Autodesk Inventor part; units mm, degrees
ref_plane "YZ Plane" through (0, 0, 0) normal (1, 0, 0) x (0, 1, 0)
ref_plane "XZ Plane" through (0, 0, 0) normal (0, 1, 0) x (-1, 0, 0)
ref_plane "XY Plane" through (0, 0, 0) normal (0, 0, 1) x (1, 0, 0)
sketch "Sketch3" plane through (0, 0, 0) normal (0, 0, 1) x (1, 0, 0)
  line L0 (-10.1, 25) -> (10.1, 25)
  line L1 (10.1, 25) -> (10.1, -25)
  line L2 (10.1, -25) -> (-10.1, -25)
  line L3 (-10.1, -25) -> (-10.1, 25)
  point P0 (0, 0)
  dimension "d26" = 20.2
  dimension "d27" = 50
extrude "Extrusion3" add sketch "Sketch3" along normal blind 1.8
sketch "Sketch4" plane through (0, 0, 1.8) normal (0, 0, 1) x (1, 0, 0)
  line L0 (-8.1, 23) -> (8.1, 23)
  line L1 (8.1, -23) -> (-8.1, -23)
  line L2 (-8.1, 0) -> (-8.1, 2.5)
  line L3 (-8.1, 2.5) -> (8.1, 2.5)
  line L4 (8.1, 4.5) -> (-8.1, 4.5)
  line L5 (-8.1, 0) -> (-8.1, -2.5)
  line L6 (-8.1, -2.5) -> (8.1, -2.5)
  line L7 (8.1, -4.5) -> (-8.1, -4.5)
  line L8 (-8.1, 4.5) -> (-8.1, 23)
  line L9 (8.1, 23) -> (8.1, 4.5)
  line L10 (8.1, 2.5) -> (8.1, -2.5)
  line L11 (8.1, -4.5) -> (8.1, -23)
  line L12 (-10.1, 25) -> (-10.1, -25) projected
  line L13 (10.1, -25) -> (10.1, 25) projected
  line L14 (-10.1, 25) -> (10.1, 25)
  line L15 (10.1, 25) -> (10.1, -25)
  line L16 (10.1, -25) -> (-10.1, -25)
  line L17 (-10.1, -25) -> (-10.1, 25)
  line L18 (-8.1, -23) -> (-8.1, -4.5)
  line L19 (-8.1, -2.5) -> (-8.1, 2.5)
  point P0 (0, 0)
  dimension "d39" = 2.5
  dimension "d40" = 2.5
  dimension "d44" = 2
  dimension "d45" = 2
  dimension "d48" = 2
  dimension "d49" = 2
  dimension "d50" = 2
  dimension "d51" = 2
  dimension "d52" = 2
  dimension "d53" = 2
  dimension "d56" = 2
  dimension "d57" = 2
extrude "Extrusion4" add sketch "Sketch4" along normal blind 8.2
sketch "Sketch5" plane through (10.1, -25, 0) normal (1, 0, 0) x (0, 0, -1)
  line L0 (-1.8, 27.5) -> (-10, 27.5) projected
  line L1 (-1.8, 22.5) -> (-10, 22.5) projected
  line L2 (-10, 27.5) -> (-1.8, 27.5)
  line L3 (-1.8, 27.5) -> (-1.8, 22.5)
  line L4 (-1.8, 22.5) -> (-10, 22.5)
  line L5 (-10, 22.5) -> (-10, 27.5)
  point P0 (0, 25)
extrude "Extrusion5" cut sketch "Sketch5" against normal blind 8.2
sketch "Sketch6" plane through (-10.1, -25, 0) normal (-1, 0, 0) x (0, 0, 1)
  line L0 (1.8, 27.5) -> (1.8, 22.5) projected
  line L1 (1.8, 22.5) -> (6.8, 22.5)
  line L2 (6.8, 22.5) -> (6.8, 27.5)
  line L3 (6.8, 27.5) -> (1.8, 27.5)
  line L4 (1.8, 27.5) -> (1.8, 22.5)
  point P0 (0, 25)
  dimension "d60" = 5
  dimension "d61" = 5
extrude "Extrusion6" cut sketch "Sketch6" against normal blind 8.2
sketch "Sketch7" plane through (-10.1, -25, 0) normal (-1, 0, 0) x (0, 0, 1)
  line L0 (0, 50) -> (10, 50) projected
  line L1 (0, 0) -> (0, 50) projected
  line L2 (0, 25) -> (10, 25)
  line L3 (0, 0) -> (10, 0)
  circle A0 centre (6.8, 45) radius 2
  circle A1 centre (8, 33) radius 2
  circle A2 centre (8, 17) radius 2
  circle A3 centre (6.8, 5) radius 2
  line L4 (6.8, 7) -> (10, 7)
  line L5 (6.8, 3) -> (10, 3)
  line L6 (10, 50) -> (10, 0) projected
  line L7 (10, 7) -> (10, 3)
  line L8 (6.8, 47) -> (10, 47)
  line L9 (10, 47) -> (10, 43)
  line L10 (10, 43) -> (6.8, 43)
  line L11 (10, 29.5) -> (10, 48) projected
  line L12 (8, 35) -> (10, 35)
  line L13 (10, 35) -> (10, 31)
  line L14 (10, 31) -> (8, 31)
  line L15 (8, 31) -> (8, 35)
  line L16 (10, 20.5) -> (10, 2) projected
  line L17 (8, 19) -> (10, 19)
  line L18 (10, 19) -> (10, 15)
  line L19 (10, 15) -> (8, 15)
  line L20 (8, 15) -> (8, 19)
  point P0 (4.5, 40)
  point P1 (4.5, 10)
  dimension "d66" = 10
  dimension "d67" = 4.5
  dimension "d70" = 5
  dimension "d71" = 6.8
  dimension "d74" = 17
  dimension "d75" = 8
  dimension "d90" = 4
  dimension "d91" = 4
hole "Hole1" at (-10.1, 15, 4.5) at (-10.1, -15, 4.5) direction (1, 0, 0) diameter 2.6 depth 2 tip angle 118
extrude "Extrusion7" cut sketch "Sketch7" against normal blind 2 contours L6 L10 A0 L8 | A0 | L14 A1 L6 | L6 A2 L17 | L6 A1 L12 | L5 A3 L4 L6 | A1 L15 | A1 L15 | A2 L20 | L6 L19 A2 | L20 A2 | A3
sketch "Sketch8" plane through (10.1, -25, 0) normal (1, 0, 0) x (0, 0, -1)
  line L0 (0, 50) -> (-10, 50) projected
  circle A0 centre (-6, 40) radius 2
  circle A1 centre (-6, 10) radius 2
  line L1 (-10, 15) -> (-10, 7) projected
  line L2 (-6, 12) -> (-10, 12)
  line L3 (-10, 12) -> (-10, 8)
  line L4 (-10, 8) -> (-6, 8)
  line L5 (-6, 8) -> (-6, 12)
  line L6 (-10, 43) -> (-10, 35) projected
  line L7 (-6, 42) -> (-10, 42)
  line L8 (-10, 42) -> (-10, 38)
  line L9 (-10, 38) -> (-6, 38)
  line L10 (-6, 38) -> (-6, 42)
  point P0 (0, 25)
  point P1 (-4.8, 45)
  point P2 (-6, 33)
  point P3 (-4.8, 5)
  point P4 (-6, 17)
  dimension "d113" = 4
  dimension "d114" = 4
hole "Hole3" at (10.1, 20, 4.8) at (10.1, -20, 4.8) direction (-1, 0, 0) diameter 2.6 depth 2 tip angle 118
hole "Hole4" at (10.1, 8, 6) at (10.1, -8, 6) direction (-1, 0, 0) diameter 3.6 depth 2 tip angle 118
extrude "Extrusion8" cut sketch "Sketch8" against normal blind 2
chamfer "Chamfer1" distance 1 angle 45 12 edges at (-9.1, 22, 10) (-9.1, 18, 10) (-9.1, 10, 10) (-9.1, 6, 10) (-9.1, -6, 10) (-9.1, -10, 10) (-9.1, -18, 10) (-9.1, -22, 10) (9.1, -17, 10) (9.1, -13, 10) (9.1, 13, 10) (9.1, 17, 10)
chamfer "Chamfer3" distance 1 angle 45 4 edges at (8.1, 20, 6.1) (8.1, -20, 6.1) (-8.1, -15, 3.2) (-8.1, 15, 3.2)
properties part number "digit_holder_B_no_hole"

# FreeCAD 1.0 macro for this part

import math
import FreeCAD as App
import Part
import Sketcher

V = App.Vector


def edges_at(feature, points):
    """Names of the edges that pass closest to the given points."""
    edges = feature.Shape.Edges
    near = lambda p: min(range(len(edges)), key=lambda i: edges[i].distToShape(Part.Vertex(*p))[0])
    return sorted({f"Edge{near(p) + 1}" for p in points})

doc = App.newDocument("Part")
body = doc.addObject("PartDesign::Body", "Body")

sketch1 = body.newObject("Sketcher::SketchObject", "Sketch")
sketch1.AttachmentSupport = (doc.getObject("XY_Plane"), [""])
sketch1.MapMode = "FlatFace"
sketch1.addGeometry(Part.LineSegment(V(10, 25, 0), V(-10, 25, 0)), False)
sketch1.addGeometry(Part.LineSegment(V(-10, 25, 0), V(-10, -25, 0)), False)
sketch1.addGeometry(Part.LineSegment(V(-10, -25, 0), V(10, -25, 0)), False)
sketch1.addGeometry(Part.LineSegment(V(10, -25, 0), V(10, 25, 0)), False)
sketch1.addConstraint(Sketcher.Constraint("Coincident", 0, 2, 1, 1))
sketch1.addConstraint(Sketcher.Constraint("Coincident", 1, 2, 2, 1))
sketch1.addConstraint(Sketcher.Constraint("Coincident", 2, 2, 3, 1))
sketch1.addConstraint(Sketcher.Constraint("Coincident", 3, 2, 0, 1))
sketch1.addConstraint(Sketcher.Constraint("Horizontal", 0))
sketch1.addConstraint(Sketcher.Constraint("Vertical", 1))
sketch1.addConstraint(Sketcher.Constraint("Horizontal", 2))
sketch1.addConstraint(Sketcher.Constraint("Vertical", 3))
sketch1.addConstraint(Sketcher.Constraint("Symmetric", 0, 2, 2, 2, -1, 1))
sketch1.addConstraint(Sketcher.Constraint("DistanceY", 1, 2, 1, 1, 50.0))
sketch1.addConstraint(Sketcher.Constraint("DistanceX", 0, 2, 0, 1, 20.2))
pad1 = body.newObject("PartDesign::Pad", "Pad")
pad1.Profile = sketch1
pad1.Length = 1.8

sketch2 = body.newObject("Sketcher::SketchObject", "Sketch001")
sketch2.AttachmentSupport = (doc.getObject("XY_Plane"), [""])
sketch2.MapMode = "FlatFace"
sketch2.AttachmentOffset = App.Placement(V(0, 0, 1.8), App.Rotation())
sketch2.addGeometry(Part.LineSegment(V(10, 25, 0), V(-10, 25, 0)), False)
sketch2.addGeometry(Part.LineSegment(V(-10, 25, 0), V(-10, -25, 0)), False)
sketch2.addGeometry(Part.LineSegment(V(-10, -25, 0), V(10, -25, 0)), False)
sketch2.addGeometry(Part.LineSegment(V(10, -25, 0), V(10, 25, 0)), False)
sketch2.addGeometry(Part.LineSegment(V(8, -4, 0), V(8, -23, 0)), False)
sketch2.addGeometry(Part.LineSegment(V(8, -23, 0), V(-8, -23, 0)), False)
sketch2.addGeometry(Part.LineSegment(V(-8, -23, 0), V(-8, -4, 0)), False)
sketch2.addGeometry(Part.LineSegment(V(-8, -4, 0), V(8, -4, 0)), False)
sketch2.addGeometry(Part.LineSegment(V(-8, -2, 0), V(-8, 2, 0)), False)
sketch2.addGeometry(Part.LineSegment(V(-8, 2, 0), V(8, 2, 0)), False)
sketch2.addGeometry(Part.LineSegment(V(8, 2, 0), V(8, -2, 0)), False)
sketch2.addGeometry(Part.LineSegment(V(8, -2, 0), V(-8, -2, 0)), False)
sketch2.addGeometry(Part.LineSegment(V(-8, 4, 0), V(-8, 23, 0)), False)
sketch2.addGeometry(Part.LineSegment(V(-8, 23, 0), V(8, 23, 0)), False)
sketch2.addGeometry(Part.LineSegment(V(8, 23, 0), V(8, 4, 0)), False)
sketch2.addGeometry(Part.LineSegment(V(8, 4, 0), V(-8, 4, 0)), False)
sketch2.addConstraint(Sketcher.Constraint("Coincident", 0, 2, 1, 1))
sketch2.addConstraint(Sketcher.Constraint("Coincident", 1, 2, 2, 1))
sketch2.addConstraint(Sketcher.Constraint("Coincident", 2, 2, 3, 1))
sketch2.addConstraint(Sketcher.Constraint("Coincident", 3, 2, 0, 1))
sketch2.addConstraint(Sketcher.Constraint("Coincident", 4, 2, 5, 1))
sketch2.addConstraint(Sketcher.Constraint("Coincident", 5, 2, 6, 1))
sketch2.addConstraint(Sketcher.Constraint("Coincident", 6, 2, 7, 1))
sketch2.addConstraint(Sketcher.Constraint("Coincident", 7, 2, 4, 1))
sketch2.addConstraint(Sketcher.Constraint("Coincident", 8, 2, 9, 1))
sketch2.addConstraint(Sketcher.Constraint("Coincident", 9, 2, 10, 1))
sketch2.addConstraint(Sketcher.Constraint("Coincident", 10, 2, 11, 1))
sketch2.addConstraint(Sketcher.Constraint("Coincident", 11, 2, 8, 1))
sketch2.addConstraint(Sketcher.Constraint("Coincident", 12, 2, 13, 1))
sketch2.addConstraint(Sketcher.Constraint("Coincident", 13, 2, 14, 1))
sketch2.addConstraint(Sketcher.Constraint("Coincident", 14, 2, 15, 1))
sketch2.addConstraint(Sketcher.Constraint("Coincident", 15, 2, 12, 1))
sketch2.addConstraint(Sketcher.Constraint("Horizontal", 0))
sketch2.addConstraint(Sketcher.Constraint("Vertical", 1))
sketch2.addConstraint(Sketcher.Constraint("Horizontal", 2))
sketch2.addConstraint(Sketcher.Constraint("Vertical", 3))
sketch2.addConstraint(Sketcher.Constraint("Vertical", 4))
sketch2.addConstraint(Sketcher.Constraint("Horizontal", 5))
sketch2.addConstraint(Sketcher.Constraint("Vertical", 6))
sketch2.addConstraint(Sketcher.Constraint("Horizontal", 7))
sketch2.addConstraint(Sketcher.Constraint("Vertical", 8))
sketch2.addConstraint(Sketcher.Constraint("Horizontal", 9))
sketch2.addConstraint(Sketcher.Constraint("Vertical", 10))
sketch2.addConstraint(Sketcher.Constraint("Horizontal", 11))
sketch2.addConstraint(Sketcher.Constraint("Vertical", 12))
sketch2.addConstraint(Sketcher.Constraint("Horizontal", 13))
sketch2.addConstraint(Sketcher.Constraint("Vertical", 14))
sketch2.addConstraint(Sketcher.Constraint("Horizontal", 15))
sketch2.addConstraint(Sketcher.Constraint("Symmetric", 0, 2, 2, 2, -1, 1))
sketch2.addConstraint(Sketcher.Constraint("Symmetric", 8, 2, 10, 2, -1, 1))
sketch2.addConstraint(Sketcher.Constraint("Symmetric", 4, 2, 12, 2, -1, 1))
sketch2.addConstraint(Sketcher.Constraint("Symmetric", 6, 2, 14, 2, -1, 1))
sketch2.addConstraint(Sketcher.Constraint("Vertical", 6, 2, 8, 2))
sketch2.addConstraint(Sketcher.Constraint("Vertical", 7, 2, 9, 2))
sketch2.addConstraint(Sketcher.Constraint("DistanceX", 4, 2, 2, 2, 2.0))
sketch2.addConstraint(Sketcher.Constraint("DistanceY", 2, 2, 4, 2, 2.0))
sketch2.addConstraint(Sketcher.Constraint("DistanceY", 7, 2, 10, 2, 2.0))
sketch2.addConstraint(Sketcher.Constraint("DistanceY", -1, 1, 8, 2, 2.5))
sketch2.addConstraint(Sketcher.Constraint("DistanceY", 1, 2, 1, 1, 50.0))
sketch2.addConstraint(Sketcher.Constraint("DistanceX", 0, 2, 0, 1, 20.2))
pad2 = body.newObject("PartDesign::Pad", "Pad001")
pad2.Profile = sketch2
pad2.Length = 8.2

sketch3 = body.newObject("Sketcher::SketchObject", "Sketch002")
sketch3.AttachmentSupport = (doc.getObject("YZ_Plane"), [""])
sketch3.MapMode = "FlatFace"
sketch3.AttachmentOffset = App.Placement(V(0, 0, 10.1), App.Rotation())
sketch3.addGeometry(Part.LineSegment(V(-2, 2, 0), V(2, 2, 0)), False)
sketch3.addGeometry(Part.LineSegment(V(2, 2, 0), V(2, 10, 0)), False)
sketch3.addGeometry(Part.LineSegment(V(2, 10, 0), V(-2, 10, 0)), False)
sketch3.addGeometry(Part.LineSegment(V(-2, 10, 0), V(-2, 2, 0)), False)
sketch3.addConstraint(Sketcher.Constraint("Coincident", 0, 2, 1, 1))
sketch3.addConstraint(Sketcher.Constraint("Coincident", 1, 2, 2, 1))
sketch3.addConstraint(Sketcher.Constraint("Coincident", 2, 2, 3, 1))
sketch3.addConstraint(Sketcher.Constraint("Coincident", 3, 2, 0, 1))
sketch3.addConstraint(Sketcher.Constraint("Horizontal", 0))
sketch3.addConstraint(Sketcher.Constraint("Vertical", 1))
sketch3.addConstraint(Sketcher.Constraint("Horizontal", 2))
sketch3.addConstraint(Sketcher.Constraint("Vertical", 3))
sketch3.addConstraint(Sketcher.Constraint("DistanceX", 0, 1, 0, 2, 5.0))
sketch3.addConstraint(Sketcher.Constraint("DistanceY", 1, 1, 1, 2, 8.2))
sketch3.addConstraint(Sketcher.Constraint("DistanceY", -1, 1, 1, 2, 10.0))
sketch3.addConstraint(Sketcher.Constraint("DistanceX", -1, 1, 0, 2, 2.5))
pocket1 = body.newObject("PartDesign::Pocket", "Pocket")
pocket1.Profile = sketch3
pocket1.Length = 8.2

sketch4 = body.newObject("Sketcher::SketchObject", "Sketch003")
sketch4.AttachmentSupport = (doc.getObject("YZ_Plane"), [""])
sketch4.MapMode = "FlatFace"
sketch4.AttachmentOffset = App.Placement(V(0, 0, -10.1), App.Rotation())
sketch4.addGeometry(Part.LineSegment(V(2, 7, 0), V(2, 2, 0)), False)
sketch4.addGeometry(Part.LineSegment(V(2, 2, 0), V(-2, 2, 0)), False)
sketch4.addGeometry(Part.LineSegment(V(-2, 2, 0), V(-2, 7, 0)), False)
sketch4.addGeometry(Part.LineSegment(V(-2, 7, 0), V(2, 7, 0)), False)
sketch4.addConstraint(Sketcher.Constraint("Coincident", 0, 2, 1, 1))
sketch4.addConstraint(Sketcher.Constraint("Coincident", 1, 2, 2, 1))
sketch4.addConstraint(Sketcher.Constraint("Coincident", 2, 2, 3, 1))
sketch4.addConstraint(Sketcher.Constraint("Coincident", 3, 2, 0, 1))
sketch4.addConstraint(Sketcher.Constraint("Vertical", 0))
sketch4.addConstraint(Sketcher.Constraint("Horizontal", 1))
sketch4.addConstraint(Sketcher.Constraint("Vertical", 2))
sketch4.addConstraint(Sketcher.Constraint("Horizontal", 3))
sketch4.addConstraint(Sketcher.Constraint("Equal", 3, 0))
sketch4.addConstraint(Sketcher.Constraint("DistanceX", 1, 2, 1, 1, 5.0))
sketch4.addConstraint(Sketcher.Constraint("DistanceX", -1, 1, 0, 2, 2.5))
sketch4.addConstraint(Sketcher.Constraint("DistanceY", -1, 1, 0, 2, 1.8))
pocket2 = body.newObject("PartDesign::Pocket", "Pocket001")
pocket2.Profile = sketch4
pocket2.Length = 8.2
pocket2.Reversed = True

sketch5 = body.newObject("Sketcher::SketchObject", "Sketch004")
sketch5.AttachmentSupport = (doc.getObject("YZ_Plane"), [""])
sketch5.MapMode = "FlatFace"
sketch5.AttachmentOffset = App.Placement(V(0, 0, -10.1), App.Rotation())
sketch5.addGeometry(Part.Circle(V(15, 4.5, 0), V(0, 0, 1), 1.3), False)
sketch5.addGeometry(Part.Circle(V(-15, 4.5, 0), V(0, 0, 1), 1.3), False)
sketch5.addConstraint(Sketcher.Constraint("Equal", 0, 1))
sketch5.addConstraint(Sketcher.Constraint("Symmetric", 0, 3, 1, 3, -2))
sketch5.addConstraint(Sketcher.Constraint("Diameter", 0, 2.6))
sketch5.addConstraint(Sketcher.Constraint("DistanceX", -1, 1, 0, 3, 15.0))
sketch5.addConstraint(Sketcher.Constraint("DistanceY", -1, 1, 0, 3, 4.5))
doc.recompute()
hole = body.newObject("PartDesign::Hole", "Hole")
hole.Profile = sketch5
hole.ThreadType = "None"
hole.Diameter = 2.6
hole.DepthType = "Dimension"
hole.Depth = 2
hole.DrillPoint = "Angled"
hole.DrillPointAngle = 118
hole.Reversed = True

sketch6 = body.newObject("Sketcher::SketchObject", "Sketch005")
sketch6.AttachmentSupport = (doc.getObject("YZ_Plane"), [""])
sketch6.MapMode = "FlatFace"
sketch6.AttachmentOffset = App.Placement(V(0, 0, -10.1), App.Rotation())
sketch6.addGeometry(Part.LineSegment(V(18, 10, 0), V(22, 10, 0)), False)
sketch6.addGeometry(Part.LineSegment(V(22, 10, 0), V(22, 6.8, 0)), False)
sketch6.addGeometry(Part.ArcOfCircle(Part.Circle(V(20, 6.8, 0), V(0, 0, 1), 2), math.radians(180), math.radians(360)), False)
sketch6.addGeometry(Part.LineSegment(V(18, 6.8, 0), V(18, 10, 0)), False)
sketch6.addGeometry(Part.LineSegment(V(6, 8, 0), V(6, 10, 0)), False)
sketch6.addGeometry(Part.LineSegment(V(6, 10, 0), V(10, 10, 0)), False)
sketch6.addGeometry(Part.LineSegment(V(10, 10, 0), V(10, 8, 0)), False)
sketch6.addGeometry(Part.ArcOfCircle(Part.Circle(V(8, 8, 0), V(0, 0, 1), 2), math.radians(180), math.radians(360)), False)
sketch6.addGeometry(Part.LineSegment(V(-6, 10, 0), V(-6, 8, 0)), False)
sketch6.addGeometry(Part.ArcOfCircle(Part.Circle(V(-8, 8, 0), V(0, 0, 1), 2), math.radians(180), math.radians(360)), False)
sketch6.addGeometry(Part.LineSegment(V(-10, 8, 0), V(-10, 10, 0)), False)
sketch6.addGeometry(Part.LineSegment(V(-10, 10, 0), V(-6, 10, 0)), False)
sketch6.addGeometry(Part.LineSegment(V(-22, 6.8, 0), V(-22, 10, 0)), False)
sketch6.addGeometry(Part.LineSegment(V(-22, 10, 0), V(-18, 10, 0)), False)
sketch6.addGeometry(Part.LineSegment(V(-18, 10, 0), V(-18, 6.8, 0)), False)
sketch6.addGeometry(Part.ArcOfCircle(Part.Circle(V(-20, 6.8, 0), V(0, 0, 1), 2), math.radians(180), math.radians(360)), False)
sketch6.addConstraint(Sketcher.Constraint("Coincident", 0, 2, 1, 1))
sketch6.addConstraint(Sketcher.Constraint("Tangent", 1, 2, 2, 2))
sketch6.addConstraint(Sketcher.Constraint("Tangent", 2, 1, 3, 1))
sketch6.addConstraint(Sketcher.Constraint("Coincident", 3, 2, 0, 1))
sketch6.addConstraint(Sketcher.Constraint("Coincident", 4, 2, 5, 1))
sketch6.addConstraint(Sketcher.Constraint("Coincident", 5, 2, 6, 1))
sketch6.addConstraint(Sketcher.Constraint("Tangent", 6, 2, 7, 2))
sketch6.addConstraint(Sketcher.Constraint("Tangent", 7, 1, 4, 1))
sketch6.addConstraint(Sketcher.Constraint("Tangent", 8, 2, 9, 2))
sketch6.addConstraint(Sketcher.Constraint("Tangent", 9, 1, 10, 1))
sketch6.addConstraint(Sketcher.Constraint("Coincident", 10, 2, 11, 1))
sketch6.addConstraint(Sketcher.Constraint("Coincident", 11, 2, 8, 1))
sketch6.addConstraint(Sketcher.Constraint("Coincident", 12, 2, 13, 1))
sketch6.addConstraint(Sketcher.Constraint("Coincident", 13, 2, 14, 1))
sketch6.addConstraint(Sketcher.Constraint("Tangent", 14, 2, 15, 2))
sketch6.addConstraint(Sketcher.Constraint("Tangent", 15, 1, 12, 1))
sketch6.addConstraint(Sketcher.Constraint("Horizontal", 0))
sketch6.addConstraint(Sketcher.Constraint("Vertical", 1))
sketch6.addConstraint(Sketcher.Constraint("Vertical", 3))
sketch6.addConstraint(Sketcher.Constraint("Vertical", 4))
sketch6.addConstraint(Sketcher.Constraint("Horizontal", 5))
sketch6.addConstraint(Sketcher.Constraint("Vertical", 6))
sketch6.addConstraint(Sketcher.Constraint("Vertical", 8))
sketch6.addConstraint(Sketcher.Constraint("Vertical", 10))
sketch6.addConstraint(Sketcher.Constraint("Horizontal", 11))
sketch6.addConstraint(Sketcher.Constraint("Vertical", 12))
sketch6.addConstraint(Sketcher.Constraint("Horizontal", 13))
sketch6.addConstraint(Sketcher.Constraint("Vertical", 14))
sketch6.addConstraint(Sketcher.Constraint("Equal", 2, 7))
sketch6.addConstraint(Sketcher.Constraint("Equal", 7, 9))
sketch6.addConstraint(Sketcher.Constraint("Equal", 9, 15))
sketch6.addConstraint(Sketcher.Constraint("Symmetric", 7, 3, 9, 3, -2))
sketch6.addConstraint(Sketcher.Constraint("Symmetric", 2, 3, 15, 3, -2))
sketch6.addConstraint(Sketcher.Constraint("Horizontal", 3, 2, 4, 2))
sketch6.addConstraint(Sketcher.Constraint("Horizontal", 5, 2, 10, 2))
sketch6.addConstraint(Sketcher.Constraint("Horizontal", 11, 2, 12, 2))
sketch6.addConstraint(Sketcher.Constraint("Radius", 2, 2.0))
sketch6.addConstraint(Sketcher.Constraint("DistanceX", -1, 1, 7, 3, 8.0))
sketch6.addConstraint(Sketcher.Constraint("DistanceY", -1, 1, 7, 3, 8.0))
sketch6.addConstraint(Sketcher.Constraint("DistanceY", -1, 1, 0, 2, 10.0))
sketch6.addConstraint(Sketcher.Constraint("DistanceX", 7, 3, 2, 1, 10.0))
sketch6.addConstraint(Sketcher.Constraint("DistanceY", -1, 1, 2, 3, 6.8))
pocket3 = body.newObject("PartDesign::Pocket", "Pocket002")
pocket3.Profile = sketch6
pocket3.Length = 2
pocket3.Reversed = True

sketch7 = body.newObject("Sketcher::SketchObject", "Sketch006")
sketch7.AttachmentSupport = (doc.getObject("YZ_Plane"), [""])
sketch7.MapMode = "FlatFace"
sketch7.AttachmentOffset = App.Placement(V(0, 0, 10.1), App.Rotation())
sketch7.addGeometry(Part.Circle(V(20, 4.8, 0), V(0, 0, 1), 1.3), False)
sketch7.addGeometry(Part.Circle(V(-20, 4.8, 0), V(0, 0, 1), 1.3), False)
sketch7.addConstraint(Sketcher.Constraint("Equal", 0, 1))
sketch7.addConstraint(Sketcher.Constraint("Symmetric", 0, 3, 1, 3, -2))
sketch7.addConstraint(Sketcher.Constraint("Diameter", 0, 2.6))
sketch7.addConstraint(Sketcher.Constraint("DistanceX", -1, 1, 0, 3, 20.0))
sketch7.addConstraint(Sketcher.Constraint("DistanceY", -1, 1, 0, 3, 4.8))
doc.recompute()
hole2 = body.newObject("PartDesign::Hole", "Hole001")
hole2.Profile = sketch7
hole2.ThreadType = "None"
hole2.Diameter = 2.6
hole2.DepthType = "Dimension"
hole2.Depth = 2
hole2.DrillPoint = "Angled"
hole2.DrillPointAngle = 118

sketch8 = body.newObject("Sketcher::SketchObject", "Sketch007")
sketch8.AttachmentSupport = (doc.getObject("YZ_Plane"), [""])
sketch8.MapMode = "FlatFace"
sketch8.AttachmentOffset = App.Placement(V(0, 0, 10.1), App.Rotation())
sketch8.addGeometry(Part.Circle(V(8, 6, 0), V(0, 0, 1), 1.8), False)
sketch8.addGeometry(Part.Circle(V(-8, 6, 0), V(0, 0, 1), 1.8), False)
sketch8.addConstraint(Sketcher.Constraint("Equal", 0, 1))
sketch8.addConstraint(Sketcher.Constraint("Symmetric", 0, 3, 1, 3, -2))
sketch8.addConstraint(Sketcher.Constraint("Diameter", 0, 3.6))
sketch8.addConstraint(Sketcher.Constraint("DistanceX", -1, 1, 0, 3, 8.0))
sketch8.addConstraint(Sketcher.Constraint("DistanceY", -1, 1, 0, 3, 6.0))
doc.recompute()
hole3 = body.newObject("PartDesign::Hole", "Hole002")
hole3.Profile = sketch8
hole3.ThreadType = "None"
hole3.Diameter = 3.6
hole3.DepthType = "Dimension"
hole3.Depth = 2
hole3.DrillPoint = "Angled"
hole3.DrillPointAngle = 118

sketch9 = body.newObject("Sketcher::SketchObject", "Sketch008")
sketch9.AttachmentSupport = (doc.getObject("YZ_Plane"), [""])
sketch9.MapMode = "FlatFace"
sketch9.AttachmentOffset = App.Placement(V(0, 0, 10.1), App.Rotation())
sketch9.addGeometry(Part.ArcOfCircle(Part.Circle(V(15, 6, 0), V(0, 0, 1), 2), math.radians(180), math.radians(360)), False)
sketch9.addGeometry(Part.LineSegment(V(17, 6, 0), V(17, 10, 0)), False)
sketch9.addGeometry(Part.LineSegment(V(17, 10, 0), V(13, 10, 0)), False)
sketch9.addGeometry(Part.LineSegment(V(13, 10, 0), V(13, 6, 0)), False)
sketch9.addGeometry(Part.ArcOfCircle(Part.Circle(V(-15, 6, 0), V(0, 0, 1), 2), math.radians(180), math.radians(360)), False)
sketch9.addGeometry(Part.LineSegment(V(-13, 6, 0), V(-13, 10, 0)), False)
sketch9.addGeometry(Part.LineSegment(V(-13, 10, 0), V(-17, 10, 0)), False)
sketch9.addGeometry(Part.LineSegment(V(-17, 10, 0), V(-17, 6, 0)), False)
sketch9.addConstraint(Sketcher.Constraint("Tangent", 0, 2, 1, 1))
sketch9.addConstraint(Sketcher.Constraint("Coincident", 1, 2, 2, 1))
sketch9.addConstraint(Sketcher.Constraint("Coincident", 2, 2, 3, 1))
sketch9.addConstraint(Sketcher.Constraint("Tangent", 3, 2, 0, 1))
sketch9.addConstraint(Sketcher.Constraint("Tangent", 4, 2, 5, 1))
sketch9.addConstraint(Sketcher.Constraint("Coincident", 5, 2, 6, 1))
sketch9.addConstraint(Sketcher.Constraint("Coincident", 6, 2, 7, 1))
sketch9.addConstraint(Sketcher.Constraint("Tangent", 7, 2, 4, 1))
sketch9.addConstraint(Sketcher.Constraint("Vertical", 1))
sketch9.addConstraint(Sketcher.Constraint("Horizontal", 2))
sketch9.addConstraint(Sketcher.Constraint("Vertical", 3))
sketch9.addConstraint(Sketcher.Constraint("Vertical", 5))
sketch9.addConstraint(Sketcher.Constraint("Horizontal", 6))
sketch9.addConstraint(Sketcher.Constraint("Vertical", 7))
sketch9.addConstraint(Sketcher.Constraint("Equal", 0, 4))
sketch9.addConstraint(Sketcher.Constraint("Symmetric", 0, 3, 4, 3, -2))
sketch9.addConstraint(Sketcher.Constraint("Horizontal", 2, 2, 5, 2))
sketch9.addConstraint(Sketcher.Constraint("Equal", 6, 1))
sketch9.addConstraint(Sketcher.Constraint("Radius", 0, 2.0))
sketch9.addConstraint(Sketcher.Constraint("DistanceX", -1, 1, 0, 3, 15.0))
sketch9.addConstraint(Sketcher.Constraint("DistanceY", -1, 1, 0, 3, 6.0))
pocket4 = body.newObject("PartDesign::Pocket", "Pocket003")
pocket4.Profile = sketch9
pocket4.Length = 2
doc.recompute()

chamfer = body.newObject("PartDesign::Chamfer", "Chamfer")
chamfer.Base = (pocket4, edges_at(pocket4, [
    (-9.1, 22, 10),
    (-9.1, 18, 10),
    (-9.1, 10, 10),
    (-9.1, 6, 10),
    (-9.1, -6, 10),
    (-9.1, -10, 10),
    (-9.1, -18, 10),
    (-9.1, -22, 10),
    (9.1, -17, 10),
    (9.1, -13, 10),
    (9.1, 13, 10),
    (9.1, 17, 10),
]))
chamfer.Size = 1
doc.recompute()

chamfer2 = body.newObject("PartDesign::Chamfer", "Chamfer001")
chamfer2.Base = (chamfer, edges_at(chamfer, [
    (8.1, 20, 6.1),
    (8.1, -20, 6.1),
    (-8.1, -15, 3.2),
    (-8.1, 15, 3.2),
]))
chamfer2.Size = 1

doc.recompute()
